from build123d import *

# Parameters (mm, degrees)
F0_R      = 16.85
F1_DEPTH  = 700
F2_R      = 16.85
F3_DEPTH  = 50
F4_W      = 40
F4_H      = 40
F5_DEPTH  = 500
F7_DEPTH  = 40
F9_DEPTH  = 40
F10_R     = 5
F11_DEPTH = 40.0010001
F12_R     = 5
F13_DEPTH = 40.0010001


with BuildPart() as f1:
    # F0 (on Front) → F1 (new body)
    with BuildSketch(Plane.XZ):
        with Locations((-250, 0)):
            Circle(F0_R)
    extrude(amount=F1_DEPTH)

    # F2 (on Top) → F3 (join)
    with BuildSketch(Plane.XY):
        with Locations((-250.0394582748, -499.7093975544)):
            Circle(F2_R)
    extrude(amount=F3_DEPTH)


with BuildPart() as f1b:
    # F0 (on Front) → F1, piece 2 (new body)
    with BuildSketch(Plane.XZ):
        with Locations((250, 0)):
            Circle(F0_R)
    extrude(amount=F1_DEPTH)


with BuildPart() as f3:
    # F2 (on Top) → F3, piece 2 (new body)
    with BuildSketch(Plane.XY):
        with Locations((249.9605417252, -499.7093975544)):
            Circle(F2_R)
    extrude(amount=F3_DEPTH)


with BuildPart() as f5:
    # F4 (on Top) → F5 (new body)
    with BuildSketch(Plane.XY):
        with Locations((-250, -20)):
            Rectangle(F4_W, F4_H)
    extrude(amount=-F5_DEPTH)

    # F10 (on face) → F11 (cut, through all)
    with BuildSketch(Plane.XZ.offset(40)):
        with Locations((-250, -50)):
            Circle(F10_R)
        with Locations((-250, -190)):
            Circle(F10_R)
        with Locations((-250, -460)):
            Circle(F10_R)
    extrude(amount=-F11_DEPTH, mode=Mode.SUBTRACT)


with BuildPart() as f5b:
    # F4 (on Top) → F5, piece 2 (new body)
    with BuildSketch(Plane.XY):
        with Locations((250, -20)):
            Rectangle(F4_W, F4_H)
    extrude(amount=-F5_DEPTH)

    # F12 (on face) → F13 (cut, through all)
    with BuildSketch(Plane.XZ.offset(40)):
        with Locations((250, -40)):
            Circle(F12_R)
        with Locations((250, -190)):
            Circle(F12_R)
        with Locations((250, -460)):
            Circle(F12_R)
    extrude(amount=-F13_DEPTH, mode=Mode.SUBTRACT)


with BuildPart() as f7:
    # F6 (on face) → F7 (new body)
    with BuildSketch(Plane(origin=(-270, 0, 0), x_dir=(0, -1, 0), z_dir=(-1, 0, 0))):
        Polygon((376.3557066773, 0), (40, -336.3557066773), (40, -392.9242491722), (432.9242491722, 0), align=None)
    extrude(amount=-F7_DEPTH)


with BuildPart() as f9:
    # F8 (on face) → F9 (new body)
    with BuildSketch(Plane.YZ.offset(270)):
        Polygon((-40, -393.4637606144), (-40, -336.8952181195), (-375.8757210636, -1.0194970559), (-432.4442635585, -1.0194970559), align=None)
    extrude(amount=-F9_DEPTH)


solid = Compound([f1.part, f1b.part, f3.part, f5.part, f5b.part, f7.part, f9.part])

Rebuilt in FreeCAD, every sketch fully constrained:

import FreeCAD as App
import Part
import Sketcher

V = App.Vector
Q = App.Units.Quantity


def add_polygon(sketch, points):
    """Adds a closed chain of lines whose ends are joined by coincident constraints."""
    first, n = sketch.GeometryCount, len(points)
    for a, b in zip(points, points[1:] + points[:1]):
        sketch.addGeometry(Part.LineSegment(App.Vector(*a, 0), App.Vector(*b, 0)), False)
    for i in range(n):
        sketch.addConstraint(Sketcher.Constraint("Coincident", first + i, 2, first + (i + 1) % n, 1))

doc = App.newDocument("Part")
body = doc.addObject("PartDesign::Body", "Body")

sketch1 = body.newObject("Sketcher::SketchObject", "Sketch")
sketch1.AttachmentSupport = (doc.getObject("XZ_Plane"), [""])
sketch1.MapMode = "FlatFace"
sketch1.addGeometry(Part.Circle(V(-250, 0, 0), V(0, 0, 1), 16.85), False)
sketch1.addConstraint([
    Sketcher.Constraint("PointOnObject", 0, 3, -1),
    Sketcher.Constraint("Diameter", 0, Q("33.7 mm")),
    Sketcher.Constraint("DistanceX", 0, 3, -1, 1, Q("250 mm")),
])
pad1 = body.newObject("PartDesign::Pad", "Pad")
pad1.Profile = sketch1
pad1.Length = 700

sketch2 = body.newObject("Sketcher::SketchObject", "Sketch001")
sketch2.AttachmentSupport = (doc.getObject("XY_Plane"), [""])
sketch2.MapMode = "FlatFace"
sketch2.addGeometry(Part.Circle(V(-250.039458, -499.709398, 0), V(0, 0, 1), 16.85), False)
sketch2.addConstraint([
    Sketcher.Constraint("Diameter", 0, Q("33.7 mm")),
    Sketcher.Constraint("DistanceX", 0, 3, -1, 1, Q("250.039458 mm")),
    Sketcher.Constraint("DistanceY", 0, 3, -1, 1, Q("499.709398 mm")),
])
pad2 = body.newObject("PartDesign::Pad", "Pad001")
pad2.Profile = sketch2
pad2.Length = 50
body2 = doc.addObject("PartDesign::Body", "Body001")

sketch3 = body2.newObject("Sketcher::SketchObject", "Sketch002")
sketch3.AttachmentSupport = (doc.getObject("XZ_Plane001"), [""])
sketch3.MapMode = "FlatFace"
sketch3.addGeometry(Part.Circle(V(250, 0, 0), V(0, 0, 1), 16.85), False)
sketch3.addConstraint([
    Sketcher.Constraint("PointOnObject", 0, 3, -1),
    Sketcher.Constraint("Diameter", 0, Q("33.7 mm")),
    Sketcher.Constraint("DistanceX", -1, 1, 0, 3, Q("250 mm")),
])
pad3 = body2.newObject("PartDesign::Pad", "Pad002")
pad3.Profile = sketch3
pad3.Length = 700
body3 = doc.addObject("PartDesign::Body", "Body002")

sketch4 = body3.newObject("Sketcher::SketchObject", "Sketch003")
sketch4.AttachmentSupport = (doc.getObject("XY_Plane002"), [""])
sketch4.MapMode = "FlatFace"
sketch4.addGeometry(Part.Circle(V(249.960542, -499.709398, 0), V(0, 0, 1), 16.85), False)
sketch4.addConstraint([
    Sketcher.Constraint("Diameter", 0, Q("33.7 mm")),
    Sketcher.Constraint("DistanceX", -1, 1, 0, 3, Q("249.960542 mm")),
    Sketcher.Constraint("DistanceY", 0, 3, -1, 1, Q("499.709398 mm")),
])
pad4 = body3.newObject("PartDesign::Pad", "Pad003")
pad4.Profile = sketch4
pad4.Length = 50
body4 = doc.addObject("PartDesign::Body", "Body003")

sketch5 = body4.newObject("Sketcher::SketchObject", "Sketch004")
sketch5.AttachmentSupport = (doc.getObject("XY_Plane003"), [""])
sketch5.MapMode = "FlatFace"
add_polygon(sketch5, [(-270, 0), (-270, -40), (-230, -40), (-230, 0)])
sketch5.addConstraint([
    Sketcher.Constraint("Vertical", 0),
    Sketcher.Constraint("Horizontal", 1),
    Sketcher.Constraint("Vertical", 2),
    Sketcher.Constraint("Horizontal", 3),
    Sketcher.Constraint("PointOnObject", 2, 2, -1),
    Sketcher.Constraint("Equal", 3, 0),
    Sketcher.Constraint("DistanceX", 1, 1, 1, 2, Q("40 mm")),
    Sketcher.Constraint("DistanceX", 0, 2, -1, 1, Q("270 mm")),
])
pad5 = body4.newObject("PartDesign::Pad", "Pad004")
pad5.Profile = sketch5
pad5.Length = 500
pad5.Reversed = True

sketch6 = body4.newObject("Sketcher::SketchObject", "Sketch005")
sketch6.AttachmentSupport = (doc.getObject("XZ_Plane003"), [""])
sketch6.MapMode = "FlatFace"
sketch6.AttachmentOffset = App.Placement(V(0, 0, 40), App.Rotation())
sketch6.addGeometry([
    Part.Circle(V(-250, -50, 0), V(0, 0, 1), 5),
    Part.Circle(V(-250, -190, 0), V(0, 0, 1), 5),
    Part.Circle(V(-250, -460, 0), V(0, 0, 1), 5),
], False)
sketch6.addConstraint([
    Sketcher.Constraint("Equal", 0, 1),
    Sketcher.Constraint("Equal", 1, 2),
    Sketcher.Constraint("Vertical", 0, 3, 1, 3),
    Sketcher.Constraint("Vertical", 1, 3, 2, 3),
    Sketcher.Constraint("Diameter", 0, Q("10 mm")),
    Sketcher.Constraint("DistanceX", 0, 3, -1, 1, Q("250 mm")),
    Sketcher.Constraint("DistanceY", 0, 3, -1, 1, Q("50 mm")),
    Sketcher.Constraint("DistanceY", 1, 3, -1, 1, Q("190 mm")),
    Sketcher.Constraint("DistanceY", 2, 3, -1, 1, Q("460 mm")),
])
pocket1 = body4.newObject("PartDesign::Pocket", "Pocket")
pocket1.Profile = sketch6
pocket1.Type = "ThroughAll"
body5 = doc.addObject("PartDesign::Body", "Body004")

sketch7 = body5.newObject("Sketcher::SketchObject", "Sketch006")
sketch7.AttachmentSupport = (doc.getObject("XY_Plane004"), [""])
sketch7.MapMode = "FlatFace"
add_polygon(sketch7, [(230, 0), (230, -40), (270, -40), (270, 0)])
sketch7.addConstraint([
    Sketcher.Constraint("Vertical", 0),
    Sketcher.Constraint("Horizontal", 1),
    Sketcher.Constraint("Vertical", 2),
    Sketcher.Constraint("Horizontal", 3),
    Sketcher.Constraint("PointOnObject", 2, 2, -1),
    Sketcher.Constraint("Equal", 3, 0),
    Sketcher.Constraint("DistanceX", 1, 1, 1, 2, Q("40 mm")),
    Sketcher.Constraint("DistanceX", -1, 1, 0, 2, Q("230 mm")),
])
pad6 = body5.newObject("PartDesign::Pad", "Pad005")
pad6.Profile = sketch7
pad6.Length = 500
pad6.Reversed = True

sketch8 = body5.newObject("Sketcher::SketchObject", "Sketch007")
sketch8.AttachmentSupport = (doc.getObject("XZ_Plane004"), [""])
sketch8.MapMode = "FlatFace"
sketch8.AttachmentOffset = App.Placement(V(0, 0, 40), App.Rotation())
sketch8.addGeometry([
    Part.Circle(V(250, -40, 0), V(0, 0, 1), 5),
    Part.Circle(V(250, -190, 0), V(0, 0, 1), 5),
    Part.Circle(V(250, -460, 0), V(0, 0, 1), 5),
], False)
sketch8.addConstraint([
    Sketcher.Constraint("Equal", 0, 1),
    Sketcher.Constraint("Equal", 1, 2),
    Sketcher.Constraint("Vertical", 0, 3, 1, 3),
    Sketcher.Constraint("Vertical", 1, 3, 2, 3),
    Sketcher.Constraint("Diameter", 0, Q("10 mm")),
    Sketcher.Constraint("DistanceX", -1, 1, 0, 3, Q("250 mm")),
    Sketcher.Constraint("DistanceY", 0, 3, -1, 1, Q("40 mm")),
    Sketcher.Constraint("DistanceY", 1, 3, -1, 1, Q("190 mm")),
    Sketcher.Constraint("DistanceY", 2, 3, -1, 1, Q("460 mm")),
])
pocket2 = body5.newObject("PartDesign::Pocket", "Pocket001")
pocket2.Profile = sketch8
pocket2.Type = "ThroughAll"
body6 = doc.addObject("PartDesign::Body", "Body005")

sketch9 = body6.newObject("Sketcher::SketchObject", "Sketch008")
sketch9.AttachmentSupport = (doc.getObject("YZ_Plane005"), [""])
sketch9.MapMode = "FlatFace"
sketch9.AttachmentOffset = App.Placement(V(0, 0, -270), App.Rotation())
add_polygon(sketch9, [(-376.355707, 0), (-40, -336.355707), (-40, -392.924249), (-432.924249, 0)])
sketch9.addConstraint([
    Sketcher.Constraint("Vertical", 1),
    Sketcher.Constraint("Horizontal", 3),
    Sketcher.Constraint("PointOnObject", 2, 2, -1),
    Sketcher.Constraint("Parallel", 0, 2),
    Sketcher.Constraint("Equal", 3, 1),
    Sketcher.Constraint("DistanceX", 0, 2, -1, 1, Q("40 mm")),
    Sketcher.Constraint("DistanceX", 3, 1, 3, 2, Q("56.568542 mm")),
    Sketcher.Constraint("DistanceY", 1, 2, -1, 1, Q("392.924249 mm")),
])
pad7 = body6.newObject("PartDesign::Pad", "Pad006")
pad7.Profile = sketch9
pad7.Length = 40
body7 = doc.addObject("PartDesign::Body", "Body006")

sketch10 = body7.newObject("Sketcher::SketchObject", "Sketch009")
sketch10.AttachmentSupport = (doc.getObject("YZ_Plane006"), [""])
sketch10.MapMode = "FlatFace"
sketch10.AttachmentOffset = App.Placement(V(0, 0, 270), App.Rotation())
add_polygon(sketch10, [(-40, -393.463761), (-40, -336.895218), (-375.875721, -1.019497), (-432.444264, -1.019497)])
sketch10.addConstraint([
    Sketcher.Constraint("Vertical", 0),
    Sketcher.Constraint("Horizontal", 2),
    Sketcher.Constraint("Parallel", 1, 3),
    Sketcher.Constraint("Equal", 2, 0),
    Sketcher.Constraint("Distance", 1, Q("475 mm")),
    Sketcher.Constraint("Distance", 3, Q("555 mm")),
    Sketcher.Constraint("DistanceX", 0, 2, -1, 1, Q("40 mm")),
    Sketcher.Constraint("DistanceY", 0, 2, -1, 1, Q("336.895218 mm")),
])
pad8 = body7.newObject("PartDesign::Pad", "Pad007")
pad8.Profile = sketch10
pad8.Length = 40
pad8.Reversed = True

doc.recompute()
